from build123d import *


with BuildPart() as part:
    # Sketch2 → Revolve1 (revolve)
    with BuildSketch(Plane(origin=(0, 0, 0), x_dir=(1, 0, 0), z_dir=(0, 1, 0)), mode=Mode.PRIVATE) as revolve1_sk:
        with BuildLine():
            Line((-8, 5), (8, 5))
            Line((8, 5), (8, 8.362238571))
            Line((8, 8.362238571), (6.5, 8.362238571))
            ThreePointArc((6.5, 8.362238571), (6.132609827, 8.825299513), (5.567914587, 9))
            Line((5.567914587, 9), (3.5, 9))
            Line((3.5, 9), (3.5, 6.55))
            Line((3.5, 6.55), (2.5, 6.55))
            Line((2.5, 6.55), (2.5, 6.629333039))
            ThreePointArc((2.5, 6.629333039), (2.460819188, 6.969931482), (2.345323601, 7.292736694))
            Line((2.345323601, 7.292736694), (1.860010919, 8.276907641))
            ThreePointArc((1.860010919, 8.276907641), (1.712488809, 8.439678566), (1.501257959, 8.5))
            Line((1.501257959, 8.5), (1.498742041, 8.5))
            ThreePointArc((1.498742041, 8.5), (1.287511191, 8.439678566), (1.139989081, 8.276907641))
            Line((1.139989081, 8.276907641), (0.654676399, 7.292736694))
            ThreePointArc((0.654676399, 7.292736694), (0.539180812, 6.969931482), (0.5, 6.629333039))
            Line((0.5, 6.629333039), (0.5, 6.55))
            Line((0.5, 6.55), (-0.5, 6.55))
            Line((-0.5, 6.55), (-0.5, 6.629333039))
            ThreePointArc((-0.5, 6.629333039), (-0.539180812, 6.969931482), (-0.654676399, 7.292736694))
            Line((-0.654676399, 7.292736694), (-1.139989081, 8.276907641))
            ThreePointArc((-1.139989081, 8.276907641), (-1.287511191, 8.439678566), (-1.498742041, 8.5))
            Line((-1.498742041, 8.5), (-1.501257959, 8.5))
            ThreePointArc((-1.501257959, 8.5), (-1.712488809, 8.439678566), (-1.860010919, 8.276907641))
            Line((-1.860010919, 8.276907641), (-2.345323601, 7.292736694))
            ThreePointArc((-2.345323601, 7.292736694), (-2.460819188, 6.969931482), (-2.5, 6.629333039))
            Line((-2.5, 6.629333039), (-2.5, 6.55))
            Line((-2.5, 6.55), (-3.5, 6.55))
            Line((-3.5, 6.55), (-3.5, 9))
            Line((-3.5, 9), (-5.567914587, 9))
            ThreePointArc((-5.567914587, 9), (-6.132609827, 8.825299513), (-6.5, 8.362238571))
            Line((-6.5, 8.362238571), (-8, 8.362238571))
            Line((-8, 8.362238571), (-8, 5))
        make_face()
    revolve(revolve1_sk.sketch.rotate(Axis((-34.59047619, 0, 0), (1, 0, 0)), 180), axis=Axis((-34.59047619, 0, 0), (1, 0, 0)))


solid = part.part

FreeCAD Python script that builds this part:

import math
import FreeCAD as App
import Part
import Sketcher
from FreeCAD import Vector

doc = App.newDocument("Part")
params = doc.addObject("Spreadsheet::Sheet", "Params")
for row, (alias, value) in enumerate([
    ("sketch1_radius", "1 mm"),
    ("sketch1_radius2", "1.5 mm"),
    ("sketch1_radius3", "0.4 mm"),
    ("sketch1_width", "16 mm"),
    ("sketch1_width2", "1 mm"),
    ("revolution_angle", "360 deg"),
], start=1):
    params.set(f"A{row}", alias)
    params.set(f"B{row}", "=" + value)
    params.setAlias(f"B{row}", alias)

body = doc.addObject("PartDesign::Body", "Body")

# Sketch on XZ plane
sketch1 = body.newObject("Sketcher::SketchObject", "Sketch")
sketch1.AttachmentSupport = (doc.getObject("XZ_Plane"), [""])
sketch1.MapMode = "FlatFace"
sketch1.addGeometry(Part.LineSegment(Vector(-8, -5, 0), Vector(8, -5, 0)), False)
sketch1.addGeometry(Part.LineSegment(Vector(8, -5, 0), Vector(8, -8.3622, 0)), False)
sketch1.addGeometry(Part.LineSegment(Vector(8, -8.3622, 0), Vector(6.5, -8.3622, 0)), False)
sketch1.addGeometry(Part.ArcOfCircle(Part.Circle(Vector(5.5679, -8, 0), Vector(0, 0, 1), 1), math.radians(-90), math.radians(-21)), False)
sketch1.addGeometry(Part.LineSegment(Vector(5.5679, -9, 0), Vector(3.5, -9, 0)), False)
sketch1.addGeometry(Part.LineSegment(Vector(3.5, -9, 0), Vector(3.5, -6.55, 0)), False)
sketch1.addGeometry(Part.LineSegment(Vector(3.5, -6.55, 0), Vector(2.5, -6.55, 0)), False)
sketch1.addGeometry(Part.LineSegment(Vector(2.5, -6.55, 0), Vector(2.5, -6.6293, 0)), False)
sketch1.addGeometry(Part.ArcOfCircle(Part.Circle(Vector(1, -6.6293, 0), Vector(0, 0, 1), 1.5), math.radians(-26), math.radians(0)), False)
sketch1.addGeometry(Part.LineSegment(Vector(2.3453, -7.2927, 0), Vector(1.86, -8.2769, 0)), False)
sketch1.addGeometry(Part.ArcOfCircle(Part.Circle(Vector(1.5013, -8.1, 0), Vector(0, 0, 1), 0.4), math.radians(-90), math.radians(-26)), False)
sketch1.addGeometry(Part.LineSegment(Vector(1.5013, -8.5, 0), Vector(1.4987, -8.5, 0)), False)
sketch1.addGeometry(Part.ArcOfCircle(Part.Circle(Vector(1.4987, -8.1, 0), Vector(0, 0, 1), 0.4), math.radians(-154), math.radians(-90)), False)
sketch1.addGeometry(Part.LineSegment(Vector(1.14, -8.2769, 0), Vector(0.6547, -7.2927, 0)), False)
sketch1.addGeometry(Part.ArcOfCircle(Part.Circle(Vector(2, -6.6293, 0), Vector(0, 0, 1), 1.5), math.radians(-180), math.radians(-154)), False)
sketch1.addGeometry(Part.LineSegment(Vector(0.5, -6.6293, 0), Vector(0.5, -6.55, 0)), False)
sketch1.addGeometry(Part.LineSegment(Vector(0.5, -6.55, 0), Vector(-0.5, -6.55, 0)), False)
sketch1.addGeometry(Part.LineSegment(Vector(-0.5, -6.55, 0), Vector(-0.5, -6.6293, 0)), False)
sketch1.addGeometry(Part.ArcOfCircle(Part.Circle(Vector(-2, -6.6293, 0), Vector(0, 0, 1), 1.5), math.radians(-26), math.radians(0)), False)
sketch1.addGeometry(Part.LineSegment(Vector(-0.6547, -7.2927, 0), Vector(-1.14, -8.2769, 0)), False)
sketch1.addGeometry(Part.ArcOfCircle(Part.Circle(Vector(-1.4987, -8.1, 0), Vector(0, 0, 1), 0.4), math.radians(-90), math.radians(-26)), False)
sketch1.addGeometry(Part.LineSegment(Vector(-1.4987, -8.5, 0), Vector(-1.5013, -8.5, 0)), False)
sketch1.addGeometry(Part.ArcOfCircle(Part.Circle(Vector(-1.5013, -8.1, 0), Vector(0, 0, 1), 0.4), math.radians(-154), math.radians(-90)), False)
sketch1.addGeometry(Part.LineSegment(Vector(-1.86, -8.2769, 0), Vector(-2.3453, -7.2927, 0)), False)
sketch1.addGeometry(Part.ArcOfCircle(Part.Circle(Vector(-1, -6.6293, 0), Vector(0, 0, 1), 1.5), math.radians(-180), math.radians(-154)), False)
sketch1.addGeometry(Part.LineSegment(Vector(-2.5, -6.6293, 0), Vector(-2.5, -6.55, 0)), False)
sketch1.addGeometry(Part.LineSegment(Vector(-2.5, -6.55, 0), Vector(-3.5, -6.55, 0)), False)
sketch1.addGeometry(Part.LineSegment(Vector(-3.5, -6.55, 0), Vector(-3.5, -9, 0)), False)
sketch1.addGeometry(Part.LineSegment(Vector(-3.5, -9, 0), Vector(-5.5679, -9, 0)), False)
sketch1.addGeometry(Part.ArcOfCircle(Part.Circle(Vector(-5.5679, -8, 0), Vector(0, 0, 1), 1), math.radians(-159), math.radians(-90)), False)
sketch1.addGeometry(Part.LineSegment(Vector(-6.5, -8.3622, 0), Vector(-8, -8.3622, 0)), False)
sketch1.addGeometry(Part.LineSegment(Vector(-8, -8.3622, 0), Vector(-8, -5, 0)), False)
sketch1.addConstraint(Sketcher.Constraint("Coincident", 0, 2, 1, 1))
sketch1.addConstraint(Sketcher.Constraint("Coincident", 1, 2, 2, 1))
sketch1.addConstraint(Sketcher.Constraint("Coincident", 2, 2, 3, 2))
sketch1.addConstraint(Sketcher.Constraint("Tangent", 3, 1, 4, 1))
sketch1.addConstraint(Sketcher.Constraint("Coincident", 4, 2, 5, 1))
sketch1.addConstraint(Sketcher.Constraint("Coincident", 5, 2, 6, 1))
sketch1.addConstraint(Sketcher.Constraint("Coincident", 6, 2, 7, 1))
sketch1.addConstraint(Sketcher.Constraint("Tangent", 7, 2, 8, 2))
sketch1.addConstraint(Sketcher.Constraint("Tangent", 8, 1, 9, 1))
sketch1.addConstraint(Sketcher.Constraint("Tangent", 9, 2, 10, 2))
sketch1.addConstraint(Sketcher.Constraint("Tangent", 10, 1, 11, 1))
sketch1.addConstraint(Sketcher.Constraint("Tangent", 11, 2, 12, 2))
sketch1.addConstraint(Sketcher.Constraint("Tangent", 12, 1, 13, 1))
sketch1.addConstraint(Sketcher.Constraint("Tangent", 13, 2, 14, 2))
sketch1.addConstraint(Sketcher.Constraint("Tangent", 14, 1, 15, 1))
sketch1.addConstraint(Sketcher.Constraint("Coincident", 15, 2, 16, 1))
sketch1.addConstraint(Sketcher.Constraint("Coincident", 16, 2, 17, 1))
sketch1.addConstraint(Sketcher.Constraint("Tangent", 17, 2, 18, 2))
sketch1.addConstraint(Sketcher.Constraint("Tangent", 18, 1, 19, 1))
sketch1.addConstraint(Sketcher.Constraint("Tangent", 19, 2, 20, 2))
sketch1.addConstraint(Sketcher.Constraint("Tangent", 20, 1, 21, 1))
sketch1.addConstraint(Sketcher.Constraint("Tangent", 21, 2, 22, 2))
sketch1.addConstraint(Sketcher.Constraint("Tangent", 22, 1, 23, 1))
sketch1.addConstraint(Sketcher.Constraint("Tangent", 23, 2, 24, 2))
sketch1.addConstraint(Sketcher.Constraint("Tangent", 24, 1, 25, 1))
sketch1.addConstraint(Sketcher.Constraint("Coincident", 25, 2, 26, 1))
sketch1.addConstraint(Sketcher.Constraint("Coincident", 26, 2, 27, 1))
sketch1.addConstraint(Sketcher.Constraint("Coincident", 27, 2, 28, 1))
sketch1.addConstraint(Sketcher.Constraint("Tangent", 28, 2, 29, 2))
sketch1.addConstraint(Sketcher.Constraint("Coincident", 29, 1, 30, 1))
sketch1.addConstraint(Sketcher.Constraint("Coincident", 30, 2, 31, 1))
sketch1.addConstraint(Sketcher.Constraint("Coincident", 31, 2, 0, 1))
sketch1.addConstraint(Sketcher.Constraint("Horizontal", 0))
sketch1.addConstraint(Sketcher.Constraint("Vertical", 1))
sketch1.addConstraint(Sketcher.Constraint("Horizontal", 2))
sketch1.addConstraint(Sketcher.Constraint("Horizontal", 4))
sketch1.addConstraint(Sketcher.Constraint("Vertical", 5))
sketch1.addConstraint(Sketcher.Constraint("Horizontal", 6))
sketch1.addConstraint(Sketcher.Constraint("Vertical", 7))
sketch1.addConstraint(Sketcher.Constraint("Vertical", 15))
sketch1.addConstraint(Sketcher.Constraint("Horizontal", 16))
sketch1.addConstraint(Sketcher.Constraint("Vertical", 17))
sketch1.addConstraint(Sketcher.Constraint("Vertical", 25))
sketch1.addConstraint(Sketcher.Constraint("Horizontal", 26))
sketch1.addConstraint(Sketcher.Constraint("Vertical", 27))
sketch1.addConstraint(Sketcher.Constraint("Horizontal", 28))
sketch1.addConstraint(Sketcher.Constraint("Horizontal", 30))
sketch1.addConstraint(Sketcher.Constraint("Vertical", 31))
sketch1.addConstraint(Sketcher.Constraint("Equal", 10, 12))
sketch1.addConstraint(Sketcher.Constraint("Equal", 8, 14))
sketch1.addConstraint(Sketcher.Constraint("Equal", 14, 18))
sketch1.addConstraint(Sketcher.Constraint("Equal", 12, 20))
sketch1.addConstraint(Sketcher.Constraint("Equal", 20, 22))
sketch1.addConstraint(Sketcher.Constraint("Equal", 18, 24))
sketch1.addConstraint(Sketcher.Constraint("Equal", 3, 29))
sketch1.addConstraint(Sketcher.Constraint("Symmetric", 14, 3, 18, 3, -2))
sketch1.addConstraint(Sketcher.Constraint("Symmetric", 12, 3, 20, 3, -2))
sketch1.addConstraint(Sketcher.Constraint("Symmetric", 8, 3, 24, 3, -2))
sketch1.addConstraint(Sketcher.Constraint("Symmetric", 3, 3, 29, 3, -2))
sketch1.addConstraint(Sketcher.Constraint("Symmetric", 5, 2, 26, 2, -2))
sketch1.addConstraint(Sketcher.Constraint("Symmetric", 1, 2, 30, 2, -2))
sketch1.addConstraint(Sketcher.Constraint("Parallel", 9, 19))
sketch1.addConstraint(Sketcher.Constraint("Parallel", 13, 23))
sketch1.addConstraint(Sketcher.Constraint("Horizontal", 8, 3, 14, 3))
sketch1.addConstraint(Sketcher.Constraint("Horizontal", 6, 2, 15, 2))
sketch1.addConstraint(Sketcher.Constraint("Vertical", 12, 3, 11, 2))
sketch1.addConstraint(Sketcher.Constraint("Vertical", 22, 3, 21, 2))
sketch1.addConstraint(Sketcher.Constraint("Equal", 6, 16))
sketch1.addConstraint(Sketcher.Constraint("Radius", 3, 1.0))
sketch1.addConstraint(Sketcher.Constraint("Radius", 8, 1.5))
sketch1.addConstraint(Sketcher.Constraint("Radius", 10, 0.4))
sketch1.addConstraint(Sketcher.Constraint("DistanceX", 0, 1, 0, 2, 16.0))
sketch1.addConstraint(Sketcher.Constraint("DistanceX", 6, 2, 6, 1, 1.0))
sketch1.addConstraint(Sketcher.Constraint("DistanceX", 2, 2, 2, 1, 1.5))
sketch1.addConstraint(Sketcher.Constraint("DistanceY", 3, 3, -1, 1, 8.0))
sketch1.addConstraint(Sketcher.Constraint("DistanceX", -1, 1, 8, 3, 1.0))
sketch1.addConstraint(Sketcher.Constraint("DistanceY", 0, 2, -1, 1, 5.0))
sketch1.addConstraint(Sketcher.Constraint("DistanceY", 5, 1, 5, 2, 2.45))
sketch1.addConstraint(Sketcher.Constraint("DistanceY", 10, 3, -1, 1, 8.1))
sketch1.addConstraint(Sketcher.Constraint("DistanceY", 1, 2, 1, 1, 3.362239))
sketch1.addConstraint(Sketcher.Constraint("DistanceY", 29, 1, 23, 2, 1.069502))
sketch1.addConstraint(Sketcher.Constraint("DistanceX", 11, 2, 11, 1, 0.002516))
sketch1.setExpression("Constraints[68]", "Params.sketch1_radius")
sketch1.setExpression("Constraints[69]", "Params.sketch1_radius2")
sketch1.setExpression("Constraints[70]", "Params.sketch1_radius3")
sketch1.setExpression("Constraints[71]", "Params.sketch1_width")
sketch1.setExpression("Constraints[72]", "Params.sketch1_width2")
revolution = body.newObject("PartDesign::Revolution", "Revolution")
revolution.Profile = sketch1
revolution.ReferenceAxis = (sketch1, ["H_Axis"])
revolution.setExpression("Angle", "Params.revolution_angle")

doc.recompute()
